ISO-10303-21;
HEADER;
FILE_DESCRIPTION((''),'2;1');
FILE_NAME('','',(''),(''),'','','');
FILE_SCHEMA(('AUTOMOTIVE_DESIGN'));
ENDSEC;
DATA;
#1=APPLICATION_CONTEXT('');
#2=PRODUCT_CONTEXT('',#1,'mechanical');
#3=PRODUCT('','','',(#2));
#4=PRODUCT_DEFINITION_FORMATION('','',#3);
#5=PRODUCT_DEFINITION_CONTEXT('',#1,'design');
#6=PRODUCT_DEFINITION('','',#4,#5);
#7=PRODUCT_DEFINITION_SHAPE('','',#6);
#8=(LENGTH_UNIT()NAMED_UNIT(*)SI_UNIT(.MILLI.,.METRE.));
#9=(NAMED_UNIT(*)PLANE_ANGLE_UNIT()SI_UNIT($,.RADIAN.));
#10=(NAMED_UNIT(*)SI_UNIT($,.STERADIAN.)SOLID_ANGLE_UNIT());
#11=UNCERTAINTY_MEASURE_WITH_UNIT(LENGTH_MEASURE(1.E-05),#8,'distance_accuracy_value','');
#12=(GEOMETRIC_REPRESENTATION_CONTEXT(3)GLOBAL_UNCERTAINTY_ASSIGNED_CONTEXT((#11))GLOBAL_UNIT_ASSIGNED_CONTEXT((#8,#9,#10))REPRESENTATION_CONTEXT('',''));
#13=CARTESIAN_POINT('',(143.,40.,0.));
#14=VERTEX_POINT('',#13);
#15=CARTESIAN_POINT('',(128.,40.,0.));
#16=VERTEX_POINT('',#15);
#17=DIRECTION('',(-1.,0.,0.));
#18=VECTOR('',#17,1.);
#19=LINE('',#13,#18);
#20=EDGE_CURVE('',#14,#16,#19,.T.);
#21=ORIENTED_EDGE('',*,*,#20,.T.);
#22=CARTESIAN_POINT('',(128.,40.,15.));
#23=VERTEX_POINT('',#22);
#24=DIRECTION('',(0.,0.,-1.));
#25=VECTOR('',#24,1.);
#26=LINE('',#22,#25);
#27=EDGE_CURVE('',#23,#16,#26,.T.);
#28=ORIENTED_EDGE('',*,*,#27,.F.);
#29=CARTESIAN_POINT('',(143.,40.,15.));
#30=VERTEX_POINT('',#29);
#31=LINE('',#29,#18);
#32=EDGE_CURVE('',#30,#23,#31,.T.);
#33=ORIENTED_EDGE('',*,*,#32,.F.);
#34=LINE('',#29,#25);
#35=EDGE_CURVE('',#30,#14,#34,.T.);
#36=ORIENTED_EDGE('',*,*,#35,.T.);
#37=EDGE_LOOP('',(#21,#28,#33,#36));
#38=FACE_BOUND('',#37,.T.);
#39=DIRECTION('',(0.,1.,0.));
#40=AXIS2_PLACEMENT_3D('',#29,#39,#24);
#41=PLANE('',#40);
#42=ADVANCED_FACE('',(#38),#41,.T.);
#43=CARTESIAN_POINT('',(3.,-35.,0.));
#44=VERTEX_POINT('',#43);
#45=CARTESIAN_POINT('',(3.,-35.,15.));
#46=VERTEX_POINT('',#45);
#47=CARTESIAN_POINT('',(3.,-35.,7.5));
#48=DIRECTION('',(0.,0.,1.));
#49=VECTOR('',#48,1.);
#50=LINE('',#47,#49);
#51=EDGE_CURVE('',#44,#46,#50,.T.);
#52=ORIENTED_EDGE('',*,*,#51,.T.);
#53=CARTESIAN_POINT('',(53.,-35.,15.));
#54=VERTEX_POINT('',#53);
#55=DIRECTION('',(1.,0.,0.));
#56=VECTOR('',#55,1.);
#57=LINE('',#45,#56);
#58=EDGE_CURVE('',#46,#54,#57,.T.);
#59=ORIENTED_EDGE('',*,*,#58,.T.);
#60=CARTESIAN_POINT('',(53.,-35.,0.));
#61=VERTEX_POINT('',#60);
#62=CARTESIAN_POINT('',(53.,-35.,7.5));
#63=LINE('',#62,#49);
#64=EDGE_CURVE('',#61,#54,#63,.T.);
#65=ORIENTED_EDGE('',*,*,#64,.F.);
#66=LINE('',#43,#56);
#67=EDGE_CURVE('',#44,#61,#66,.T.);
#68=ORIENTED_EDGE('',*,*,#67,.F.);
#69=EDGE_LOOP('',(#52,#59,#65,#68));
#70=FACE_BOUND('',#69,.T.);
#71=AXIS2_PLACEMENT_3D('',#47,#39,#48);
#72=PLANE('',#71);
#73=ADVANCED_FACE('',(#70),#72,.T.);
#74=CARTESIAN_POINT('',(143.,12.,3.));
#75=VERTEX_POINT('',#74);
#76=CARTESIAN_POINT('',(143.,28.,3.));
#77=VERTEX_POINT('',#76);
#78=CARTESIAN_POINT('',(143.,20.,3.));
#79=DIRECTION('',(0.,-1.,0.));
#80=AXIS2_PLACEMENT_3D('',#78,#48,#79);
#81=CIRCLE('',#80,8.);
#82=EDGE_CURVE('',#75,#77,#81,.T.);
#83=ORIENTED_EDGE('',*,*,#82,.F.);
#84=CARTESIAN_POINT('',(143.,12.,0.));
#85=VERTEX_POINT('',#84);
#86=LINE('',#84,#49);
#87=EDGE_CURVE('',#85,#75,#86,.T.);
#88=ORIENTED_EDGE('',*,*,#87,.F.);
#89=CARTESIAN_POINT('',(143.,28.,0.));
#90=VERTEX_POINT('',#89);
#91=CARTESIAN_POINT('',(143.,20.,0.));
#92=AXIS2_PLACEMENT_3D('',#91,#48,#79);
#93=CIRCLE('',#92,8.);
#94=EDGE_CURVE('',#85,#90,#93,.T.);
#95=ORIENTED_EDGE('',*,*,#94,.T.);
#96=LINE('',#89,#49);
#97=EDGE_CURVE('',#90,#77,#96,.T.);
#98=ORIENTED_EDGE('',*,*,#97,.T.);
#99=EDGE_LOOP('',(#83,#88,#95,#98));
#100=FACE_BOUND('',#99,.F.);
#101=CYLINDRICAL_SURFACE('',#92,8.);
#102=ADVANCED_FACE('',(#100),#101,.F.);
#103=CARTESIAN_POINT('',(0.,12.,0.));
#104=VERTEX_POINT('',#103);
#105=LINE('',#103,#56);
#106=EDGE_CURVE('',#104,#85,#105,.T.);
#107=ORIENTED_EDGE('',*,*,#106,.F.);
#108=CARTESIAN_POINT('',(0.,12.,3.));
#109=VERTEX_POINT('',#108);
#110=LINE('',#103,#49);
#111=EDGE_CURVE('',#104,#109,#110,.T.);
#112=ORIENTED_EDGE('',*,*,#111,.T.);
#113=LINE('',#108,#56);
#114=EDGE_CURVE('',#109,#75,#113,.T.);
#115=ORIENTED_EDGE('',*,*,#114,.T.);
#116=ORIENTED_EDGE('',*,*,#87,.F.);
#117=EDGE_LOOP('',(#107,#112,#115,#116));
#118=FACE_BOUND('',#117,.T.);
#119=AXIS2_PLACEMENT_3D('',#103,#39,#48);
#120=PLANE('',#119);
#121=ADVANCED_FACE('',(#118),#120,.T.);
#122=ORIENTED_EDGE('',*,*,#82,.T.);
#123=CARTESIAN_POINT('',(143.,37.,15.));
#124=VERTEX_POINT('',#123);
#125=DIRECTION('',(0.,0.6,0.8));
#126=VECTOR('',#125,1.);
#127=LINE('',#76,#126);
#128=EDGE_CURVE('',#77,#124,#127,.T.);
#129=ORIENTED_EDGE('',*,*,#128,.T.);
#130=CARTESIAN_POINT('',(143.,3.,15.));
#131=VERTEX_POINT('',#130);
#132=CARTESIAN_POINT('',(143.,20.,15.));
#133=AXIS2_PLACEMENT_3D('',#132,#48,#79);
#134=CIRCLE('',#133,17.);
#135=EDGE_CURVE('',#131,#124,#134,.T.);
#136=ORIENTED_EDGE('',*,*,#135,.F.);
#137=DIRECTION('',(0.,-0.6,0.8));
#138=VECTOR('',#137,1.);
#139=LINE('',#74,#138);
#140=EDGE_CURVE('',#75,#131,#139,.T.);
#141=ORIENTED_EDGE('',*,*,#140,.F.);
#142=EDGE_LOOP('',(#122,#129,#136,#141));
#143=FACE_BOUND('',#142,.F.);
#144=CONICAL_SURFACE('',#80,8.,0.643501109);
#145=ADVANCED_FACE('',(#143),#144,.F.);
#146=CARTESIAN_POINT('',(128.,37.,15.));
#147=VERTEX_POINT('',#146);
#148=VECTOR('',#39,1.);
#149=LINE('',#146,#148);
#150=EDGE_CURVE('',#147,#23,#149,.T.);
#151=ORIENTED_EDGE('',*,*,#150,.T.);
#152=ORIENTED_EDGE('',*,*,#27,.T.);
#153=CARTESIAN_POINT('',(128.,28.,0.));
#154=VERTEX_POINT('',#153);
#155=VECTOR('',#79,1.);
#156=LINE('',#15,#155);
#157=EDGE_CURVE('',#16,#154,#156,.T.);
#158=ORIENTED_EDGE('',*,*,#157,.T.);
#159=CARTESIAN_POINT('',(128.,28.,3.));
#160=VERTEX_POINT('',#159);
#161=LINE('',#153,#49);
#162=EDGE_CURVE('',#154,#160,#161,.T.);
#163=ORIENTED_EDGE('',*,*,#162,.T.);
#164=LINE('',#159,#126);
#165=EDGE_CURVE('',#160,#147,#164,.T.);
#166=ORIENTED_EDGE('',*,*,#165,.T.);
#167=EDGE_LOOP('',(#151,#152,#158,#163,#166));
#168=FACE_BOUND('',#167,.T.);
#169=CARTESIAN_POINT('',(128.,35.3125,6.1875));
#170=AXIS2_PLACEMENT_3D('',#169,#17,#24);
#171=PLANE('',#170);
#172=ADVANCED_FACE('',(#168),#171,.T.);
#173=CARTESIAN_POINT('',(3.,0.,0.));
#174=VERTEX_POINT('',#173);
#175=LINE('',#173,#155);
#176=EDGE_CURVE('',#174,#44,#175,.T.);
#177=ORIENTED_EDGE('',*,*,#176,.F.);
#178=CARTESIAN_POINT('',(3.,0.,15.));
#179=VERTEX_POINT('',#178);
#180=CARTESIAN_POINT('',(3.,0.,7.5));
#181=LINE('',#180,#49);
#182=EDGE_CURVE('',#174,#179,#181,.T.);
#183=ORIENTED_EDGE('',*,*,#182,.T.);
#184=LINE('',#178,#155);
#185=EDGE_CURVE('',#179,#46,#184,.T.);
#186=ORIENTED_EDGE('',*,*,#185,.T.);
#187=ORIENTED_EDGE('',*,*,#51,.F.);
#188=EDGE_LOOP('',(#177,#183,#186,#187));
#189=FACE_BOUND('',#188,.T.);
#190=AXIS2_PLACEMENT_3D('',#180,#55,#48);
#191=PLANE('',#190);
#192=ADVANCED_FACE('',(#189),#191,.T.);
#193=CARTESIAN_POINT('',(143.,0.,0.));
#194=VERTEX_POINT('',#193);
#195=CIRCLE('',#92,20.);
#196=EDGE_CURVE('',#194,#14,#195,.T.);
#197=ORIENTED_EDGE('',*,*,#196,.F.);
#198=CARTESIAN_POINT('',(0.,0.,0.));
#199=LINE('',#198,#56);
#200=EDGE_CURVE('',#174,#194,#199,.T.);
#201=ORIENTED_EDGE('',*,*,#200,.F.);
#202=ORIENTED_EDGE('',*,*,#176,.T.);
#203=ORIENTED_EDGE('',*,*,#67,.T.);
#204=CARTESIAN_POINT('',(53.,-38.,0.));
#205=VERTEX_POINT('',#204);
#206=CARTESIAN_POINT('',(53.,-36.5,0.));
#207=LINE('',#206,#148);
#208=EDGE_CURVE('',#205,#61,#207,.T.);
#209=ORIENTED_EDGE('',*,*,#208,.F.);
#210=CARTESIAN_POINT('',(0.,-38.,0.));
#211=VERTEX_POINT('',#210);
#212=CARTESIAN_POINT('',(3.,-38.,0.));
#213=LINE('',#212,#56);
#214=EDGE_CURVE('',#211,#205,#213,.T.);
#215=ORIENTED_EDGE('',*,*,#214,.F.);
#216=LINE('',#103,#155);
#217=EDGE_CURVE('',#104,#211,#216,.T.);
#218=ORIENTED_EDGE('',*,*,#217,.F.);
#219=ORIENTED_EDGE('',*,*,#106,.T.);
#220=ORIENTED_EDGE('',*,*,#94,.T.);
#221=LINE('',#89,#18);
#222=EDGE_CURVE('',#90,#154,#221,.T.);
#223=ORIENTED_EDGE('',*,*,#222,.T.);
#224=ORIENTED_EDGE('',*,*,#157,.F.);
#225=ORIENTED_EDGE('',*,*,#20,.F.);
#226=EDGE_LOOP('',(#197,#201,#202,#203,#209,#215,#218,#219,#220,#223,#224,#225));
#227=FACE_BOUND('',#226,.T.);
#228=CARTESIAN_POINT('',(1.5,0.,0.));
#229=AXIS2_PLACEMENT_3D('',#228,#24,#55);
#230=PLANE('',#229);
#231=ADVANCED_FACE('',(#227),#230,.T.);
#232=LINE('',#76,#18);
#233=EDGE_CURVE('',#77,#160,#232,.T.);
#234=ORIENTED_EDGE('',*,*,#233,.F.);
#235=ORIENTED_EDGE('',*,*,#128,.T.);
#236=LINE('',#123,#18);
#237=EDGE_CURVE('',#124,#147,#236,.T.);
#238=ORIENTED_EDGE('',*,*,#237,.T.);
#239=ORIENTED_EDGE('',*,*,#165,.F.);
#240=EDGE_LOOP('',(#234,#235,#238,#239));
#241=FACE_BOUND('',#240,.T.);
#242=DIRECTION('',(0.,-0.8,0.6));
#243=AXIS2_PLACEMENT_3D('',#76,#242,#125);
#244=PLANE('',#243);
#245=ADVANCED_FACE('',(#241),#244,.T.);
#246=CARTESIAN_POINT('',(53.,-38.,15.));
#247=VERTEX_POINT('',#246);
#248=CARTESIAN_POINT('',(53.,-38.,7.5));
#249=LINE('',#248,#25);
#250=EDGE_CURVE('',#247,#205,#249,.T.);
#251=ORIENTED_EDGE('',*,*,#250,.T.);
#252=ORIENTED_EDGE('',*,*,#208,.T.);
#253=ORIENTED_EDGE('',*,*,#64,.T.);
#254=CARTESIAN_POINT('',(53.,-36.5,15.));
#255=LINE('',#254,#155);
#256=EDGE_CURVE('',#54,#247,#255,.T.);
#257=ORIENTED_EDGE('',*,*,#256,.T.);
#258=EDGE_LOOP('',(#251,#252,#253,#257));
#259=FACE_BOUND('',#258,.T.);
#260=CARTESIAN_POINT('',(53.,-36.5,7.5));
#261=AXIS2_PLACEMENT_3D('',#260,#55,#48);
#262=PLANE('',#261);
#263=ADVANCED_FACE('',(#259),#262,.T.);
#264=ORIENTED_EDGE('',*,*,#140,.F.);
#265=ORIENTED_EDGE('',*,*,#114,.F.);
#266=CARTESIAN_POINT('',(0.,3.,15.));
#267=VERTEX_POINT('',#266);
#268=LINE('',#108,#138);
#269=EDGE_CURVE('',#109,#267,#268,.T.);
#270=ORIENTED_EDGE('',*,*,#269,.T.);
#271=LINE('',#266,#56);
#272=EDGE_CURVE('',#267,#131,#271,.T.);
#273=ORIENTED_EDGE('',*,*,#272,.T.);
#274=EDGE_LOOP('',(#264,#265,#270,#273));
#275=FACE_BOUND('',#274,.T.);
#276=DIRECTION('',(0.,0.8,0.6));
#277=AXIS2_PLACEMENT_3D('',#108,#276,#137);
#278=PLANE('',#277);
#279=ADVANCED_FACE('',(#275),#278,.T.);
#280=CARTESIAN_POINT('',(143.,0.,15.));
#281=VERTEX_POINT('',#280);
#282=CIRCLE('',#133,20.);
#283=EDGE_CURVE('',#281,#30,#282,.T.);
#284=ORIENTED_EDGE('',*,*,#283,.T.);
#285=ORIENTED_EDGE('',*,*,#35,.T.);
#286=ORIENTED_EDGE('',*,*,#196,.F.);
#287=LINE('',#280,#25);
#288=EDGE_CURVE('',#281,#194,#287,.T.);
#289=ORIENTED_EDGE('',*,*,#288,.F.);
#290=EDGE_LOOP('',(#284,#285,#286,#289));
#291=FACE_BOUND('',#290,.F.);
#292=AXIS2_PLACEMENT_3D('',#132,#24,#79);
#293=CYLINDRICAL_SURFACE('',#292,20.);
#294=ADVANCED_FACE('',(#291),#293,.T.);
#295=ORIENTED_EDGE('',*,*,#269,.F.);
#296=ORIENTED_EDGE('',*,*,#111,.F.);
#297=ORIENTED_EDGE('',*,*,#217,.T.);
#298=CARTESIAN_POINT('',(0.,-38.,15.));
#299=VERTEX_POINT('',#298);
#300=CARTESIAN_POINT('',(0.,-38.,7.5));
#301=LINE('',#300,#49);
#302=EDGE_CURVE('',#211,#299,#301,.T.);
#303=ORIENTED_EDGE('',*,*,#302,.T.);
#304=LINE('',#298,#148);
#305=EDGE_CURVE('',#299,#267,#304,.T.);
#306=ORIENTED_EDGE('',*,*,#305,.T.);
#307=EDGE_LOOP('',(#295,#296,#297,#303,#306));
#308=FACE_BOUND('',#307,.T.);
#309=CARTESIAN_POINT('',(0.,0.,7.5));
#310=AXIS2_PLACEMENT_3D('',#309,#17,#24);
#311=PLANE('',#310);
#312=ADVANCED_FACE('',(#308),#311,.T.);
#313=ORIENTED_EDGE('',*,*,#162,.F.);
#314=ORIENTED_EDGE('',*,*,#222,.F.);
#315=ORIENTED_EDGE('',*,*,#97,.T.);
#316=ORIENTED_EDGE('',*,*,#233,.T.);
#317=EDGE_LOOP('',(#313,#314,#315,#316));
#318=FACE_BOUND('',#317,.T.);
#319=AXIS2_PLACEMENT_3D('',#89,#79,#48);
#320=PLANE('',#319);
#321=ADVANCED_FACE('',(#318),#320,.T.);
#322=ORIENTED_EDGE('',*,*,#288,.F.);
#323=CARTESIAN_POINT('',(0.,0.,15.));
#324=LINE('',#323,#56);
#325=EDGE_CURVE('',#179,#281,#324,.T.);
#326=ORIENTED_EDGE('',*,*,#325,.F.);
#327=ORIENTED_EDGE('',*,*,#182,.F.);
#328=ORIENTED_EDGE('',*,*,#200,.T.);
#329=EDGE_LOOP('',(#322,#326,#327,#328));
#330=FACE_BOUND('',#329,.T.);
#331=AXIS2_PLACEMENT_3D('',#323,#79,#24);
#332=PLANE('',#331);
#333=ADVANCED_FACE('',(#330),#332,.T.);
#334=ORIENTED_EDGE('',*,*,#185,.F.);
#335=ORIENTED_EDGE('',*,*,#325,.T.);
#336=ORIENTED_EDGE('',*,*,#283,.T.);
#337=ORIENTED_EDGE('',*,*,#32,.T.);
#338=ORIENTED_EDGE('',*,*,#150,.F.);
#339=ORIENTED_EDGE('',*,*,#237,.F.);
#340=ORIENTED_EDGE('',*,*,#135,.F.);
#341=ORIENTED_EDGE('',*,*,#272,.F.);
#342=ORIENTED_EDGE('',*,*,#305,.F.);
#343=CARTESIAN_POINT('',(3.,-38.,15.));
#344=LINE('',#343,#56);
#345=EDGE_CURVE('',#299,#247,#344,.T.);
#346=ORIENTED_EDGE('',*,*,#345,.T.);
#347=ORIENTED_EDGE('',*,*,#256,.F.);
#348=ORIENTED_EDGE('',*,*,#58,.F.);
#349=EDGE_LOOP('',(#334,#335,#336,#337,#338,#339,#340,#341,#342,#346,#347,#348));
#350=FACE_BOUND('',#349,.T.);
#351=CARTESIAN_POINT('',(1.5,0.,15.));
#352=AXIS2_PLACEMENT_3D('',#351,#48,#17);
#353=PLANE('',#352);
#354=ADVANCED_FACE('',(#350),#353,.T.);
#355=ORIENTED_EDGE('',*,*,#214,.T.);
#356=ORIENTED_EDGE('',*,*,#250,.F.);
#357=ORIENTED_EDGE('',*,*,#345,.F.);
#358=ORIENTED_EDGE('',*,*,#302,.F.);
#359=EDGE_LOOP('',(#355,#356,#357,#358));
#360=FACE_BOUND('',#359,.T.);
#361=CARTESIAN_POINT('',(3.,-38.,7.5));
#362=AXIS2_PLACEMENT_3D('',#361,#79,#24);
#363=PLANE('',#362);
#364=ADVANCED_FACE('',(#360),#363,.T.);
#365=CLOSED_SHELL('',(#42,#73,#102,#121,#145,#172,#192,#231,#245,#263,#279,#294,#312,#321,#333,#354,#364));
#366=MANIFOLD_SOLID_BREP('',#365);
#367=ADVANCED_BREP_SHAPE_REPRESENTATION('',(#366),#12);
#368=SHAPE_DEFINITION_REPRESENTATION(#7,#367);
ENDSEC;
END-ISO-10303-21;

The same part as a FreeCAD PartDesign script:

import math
import FreeCAD as App
import Part
import Sketcher


def add_polygon(sketch, points):
    """Adds a closed chain of lines whose ends are joined by coincident constraints."""
    first, n = sketch.GeometryCount, len(points)
    for a, b in zip(points, points[1:] + points[:1]):
        sketch.addGeometry(Part.LineSegment(App.Vector(*a, 0), App.Vector(*b, 0)), False)
    for i in range(n):
        sketch.addConstraint(Sketcher.Constraint("Coincident", first + i, 2, first + (i + 1) % n, 1))

doc = App.newDocument("Part")
body = doc.addObject("PartDesign::Body", "Body")

# Sketch on YZ plane
sketch1 = body.newObject("Sketcher::SketchObject", "Sketch")
sketch1.AttachmentSupport = (doc.getObject("YZ_Plane"), [""])
sketch1.MapMode = "FlatFace"
add_polygon(sketch1, [(0, 15), (0, 0), (12, 0), (12, 3), (3, 15)])  # lines 0-4
sketch1.addConstraint(Sketcher.Constraint("Vertical", 0))
sketch1.addConstraint(Sketcher.Constraint("Horizontal", 1))
sketch1.addConstraint(Sketcher.Constraint("Vertical", 2))
sketch1.addConstraint(Sketcher.Constraint("Horizontal", 4))
sketch1.addConstraint(Sketcher.Constraint("Coincident", 0, 2, -1, 1))
sketch1.addConstraint(Sketcher.Constraint("Equal", 4, 2))
sketch1.addConstraint(Sketcher.Constraint("DistanceX", 1, 1, 1, 2, 12.0))
sketch1.addConstraint(Sketcher.Constraint("DistanceX", 4, 2, 4, 1, 3.0))
sketch1.addConstraint(Sketcher.Constraint("DistanceY", 0, 2, 0, 1, 15.0))

# Sketch on XY plane
sketch2 = body.newObject("Sketcher::SketchObject", "Sketch001")
sketch2.AttachmentSupport = (doc.getObject("XY_Plane"), [""])
sketch2.MapMode = "FlatFace"
sketch2.addGeometry(Part.LineSegment(App.Vector(0, 0, 0), App.Vector(143, 0, 0)), False)
sketch2.addGeometry(Part.ArcOfCircle(Part.Circle(App.Vector(143, 20, 0), App.Vector(0, 0, 1), 20), math.radians(-90), math.radians(90)), False)
sketch2.addGeometry(Part.LineSegment(App.Vector(143, 40, 0), App.Vector(128, 40, 0)), False)
sketch2.addConstraint(Sketcher.Constraint("Tangent", 0, 2, 1, 1))
sketch2.addConstraint(Sketcher.Constraint("Tangent", 1, 2, 2, 1))
sketch2.addConstraint(Sketcher.Constraint("Horizontal", 0))
sketch2.addConstraint(Sketcher.Constraint("Horizontal", 2))
sketch2.addConstraint(Sketcher.Constraint("Coincident", 0, 1, -1, 1))
sketch2.addConstraint(Sketcher.Constraint("Radius", 1, 20.0))
sketch2.addConstraint(Sketcher.Constraint("DistanceX", 0, 1, 0, 2, 143.0))
sketch2.addConstraint(Sketcher.Constraint("DistanceX", 2, 2, 2, 1, 15.0))
doc.recompute()

additivepipe = body.newObject("PartDesign::AdditivePipe", "AdditivePipe")
additivepipe.Profile = sketch1
additivepipe.Spine = (sketch2, ["Edge1", "Edge2", "Edge3"])

# Sketch on XZ plane
sketch3 = body.newObject("Sketcher::SketchObject", "Sketch002")
sketch3.AttachmentSupport = (doc.getObject("XZ_Plane"), [""])
sketch3.MapMode = "FlatFace"
add_polygon(sketch3, [(0, 15), (0, 0), (3, 0), (3, 15)])  # lines 0-3
sketch3.addConstraint(Sketcher.Constraint("Vertical", 0))
sketch3.addConstraint(Sketcher.Constraint("Horizontal", 1))
sketch3.addConstraint(Sketcher.Constraint("Vertical", 2))
sketch3.addConstraint(Sketcher.Constraint("Horizontal", 3))
sketch3.addConstraint(Sketcher.Constraint("Coincident", 0, 2, -1, 1))
sketch3.addConstraint(Sketcher.Constraint("DistanceX", 1, 1, 1, 2, 3.0))
sketch3.addConstraint(Sketcher.Constraint("DistanceY", 0, 2, 0, 1, 15.0))

# Sketch on XY plane
sketch4 = body.newObject("Sketcher::SketchObject", "Sketch003")
sketch4.AttachmentSupport = (doc.getObject("XY_Plane"), [""])
sketch4.MapMode = "FlatFace"
sketch4.addGeometry(Part.LineSegment(App.Vector(3, 0, 0), App.Vector(3, -35, 0)), False)
sketch4.addGeometry(Part.LineSegment(App.Vector(3, -35, 0), App.Vector(53, -35, 0)), False)
sketch4.addConstraint(Sketcher.Constraint("Coincident", 0, 2, 1, 1))
sketch4.addConstraint(Sketcher.Constraint("Vertical", 0))
sketch4.addConstraint(Sketcher.Constraint("Horizontal", 1))
sketch4.addConstraint(Sketcher.Constraint("PointOnObject", 0, 1, -1))
sketch4.addConstraint(Sketcher.Constraint("DistanceX", 1, 1, 1, 2, 50.0))
sketch4.addConstraint(Sketcher.Constraint("DistanceY", 0, 2, 0, 1, 35.0))
sketch4.addConstraint(Sketcher.Constraint("DistanceX", -1, 1, 0, 1, 3.0))
doc.recompute()

additivepipe2 = body.newObject("PartDesign::AdditivePipe", "AdditivePipe001")
additivepipe2.Profile = sketch3
additivepipe2.Spine = (sketch4, ["Edge1", "Edge2"])
additivepipe2.Transition = "Right corner"

doc.recompute()
